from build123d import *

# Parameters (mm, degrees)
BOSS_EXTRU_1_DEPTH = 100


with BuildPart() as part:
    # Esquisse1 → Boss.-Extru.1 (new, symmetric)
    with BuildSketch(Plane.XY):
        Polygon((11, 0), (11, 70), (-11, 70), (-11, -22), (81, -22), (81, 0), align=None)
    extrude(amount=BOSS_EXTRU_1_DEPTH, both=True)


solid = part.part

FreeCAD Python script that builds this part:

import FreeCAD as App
import Part
import Sketcher

V = App.Vector
Q = App.Units.Quantity


def add_polygon(sketch, points):
    """Adds a closed chain of lines whose ends are joined by coincident constraints."""
    first, n = sketch.GeometryCount, len(points)
    for a, b in zip(points, points[1:] + points[:1]):
        sketch.addGeometry(Part.LineSegment(App.Vector(*a, 0), App.Vector(*b, 0)), False)
    for i in range(n):
        sketch.addConstraint(Sketcher.Constraint("Coincident", first + i, 2, first + (i + 1) % n, 1))

doc = App.newDocument("Part")
params = doc.addObject("Spreadsheet::Sheet", "Params")
for row, (alias, value) in enumerate([
    ("sketch1_width", "22 mm"),
    ("sketch1_width2", "92 mm"),
    ("pad1_length", "200 mm"),
], start=1):
    params.set(f"A{row}", alias)
    params.set(f"B{row}", "=" + value)
    params.setAlias(f"B{row}", alias)

body = doc.addObject("PartDesign::Body", "Body")

sketch1 = body.newObject("Sketcher::SketchObject", "Sketch")
sketch1.AttachmentSupport = (doc.getObject("XY_Plane"), [""])
sketch1.MapMode = "FlatFace"
add_polygon(sketch1, [(11, 0), (11, 70), (-11, 70), (-11, -22), (81, -22), (81, 0)])
sketch1.addConstraint(Sketcher.Constraint("Vertical", 0))
sketch1.addConstraint(Sketcher.Constraint("Horizontal", 1))
sketch1.addConstraint(Sketcher.Constraint("Vertical", 2))
sketch1.addConstraint(Sketcher.Constraint("Horizontal", 3))
sketch1.addConstraint(Sketcher.Constraint("Vertical", 4))
sketch1.addConstraint(Sketcher.Constraint("Horizontal", 5))
sketch1.addConstraint(Sketcher.Constraint("PointOnObject", 4, 2, -1))
sketch1.addConstraint(Sketcher.Constraint("Equal", 5, 0))
sketch1.addConstraint(Sketcher.Constraint("Equal", 3, 2))
sketch1.addConstraint(Sketcher.Constraint("DistanceX", 1, 2, 1, 1, Q("22 mm")))
sketch1.addConstraint(Sketcher.Constraint("DistanceX", 3, 1, 3, 2, Q("92 mm")))
sketch1.addConstraint(Sketcher.Constraint("DistanceX", -1, 1, 0, 2, Q("11 mm")))
sketch1.setExpression("Constraints[15]", "Params.sketch1_width")
sketch1.setExpression("Constraints[16]", "Params.sketch1_width2")
pad1 = body.newObject("PartDesign::Pad", "Pad")
pad1.Profile = sketch1
pad1.setExpression("Length", "Params.pad1_length")
pad1.Midplane = True

doc.recompute()
